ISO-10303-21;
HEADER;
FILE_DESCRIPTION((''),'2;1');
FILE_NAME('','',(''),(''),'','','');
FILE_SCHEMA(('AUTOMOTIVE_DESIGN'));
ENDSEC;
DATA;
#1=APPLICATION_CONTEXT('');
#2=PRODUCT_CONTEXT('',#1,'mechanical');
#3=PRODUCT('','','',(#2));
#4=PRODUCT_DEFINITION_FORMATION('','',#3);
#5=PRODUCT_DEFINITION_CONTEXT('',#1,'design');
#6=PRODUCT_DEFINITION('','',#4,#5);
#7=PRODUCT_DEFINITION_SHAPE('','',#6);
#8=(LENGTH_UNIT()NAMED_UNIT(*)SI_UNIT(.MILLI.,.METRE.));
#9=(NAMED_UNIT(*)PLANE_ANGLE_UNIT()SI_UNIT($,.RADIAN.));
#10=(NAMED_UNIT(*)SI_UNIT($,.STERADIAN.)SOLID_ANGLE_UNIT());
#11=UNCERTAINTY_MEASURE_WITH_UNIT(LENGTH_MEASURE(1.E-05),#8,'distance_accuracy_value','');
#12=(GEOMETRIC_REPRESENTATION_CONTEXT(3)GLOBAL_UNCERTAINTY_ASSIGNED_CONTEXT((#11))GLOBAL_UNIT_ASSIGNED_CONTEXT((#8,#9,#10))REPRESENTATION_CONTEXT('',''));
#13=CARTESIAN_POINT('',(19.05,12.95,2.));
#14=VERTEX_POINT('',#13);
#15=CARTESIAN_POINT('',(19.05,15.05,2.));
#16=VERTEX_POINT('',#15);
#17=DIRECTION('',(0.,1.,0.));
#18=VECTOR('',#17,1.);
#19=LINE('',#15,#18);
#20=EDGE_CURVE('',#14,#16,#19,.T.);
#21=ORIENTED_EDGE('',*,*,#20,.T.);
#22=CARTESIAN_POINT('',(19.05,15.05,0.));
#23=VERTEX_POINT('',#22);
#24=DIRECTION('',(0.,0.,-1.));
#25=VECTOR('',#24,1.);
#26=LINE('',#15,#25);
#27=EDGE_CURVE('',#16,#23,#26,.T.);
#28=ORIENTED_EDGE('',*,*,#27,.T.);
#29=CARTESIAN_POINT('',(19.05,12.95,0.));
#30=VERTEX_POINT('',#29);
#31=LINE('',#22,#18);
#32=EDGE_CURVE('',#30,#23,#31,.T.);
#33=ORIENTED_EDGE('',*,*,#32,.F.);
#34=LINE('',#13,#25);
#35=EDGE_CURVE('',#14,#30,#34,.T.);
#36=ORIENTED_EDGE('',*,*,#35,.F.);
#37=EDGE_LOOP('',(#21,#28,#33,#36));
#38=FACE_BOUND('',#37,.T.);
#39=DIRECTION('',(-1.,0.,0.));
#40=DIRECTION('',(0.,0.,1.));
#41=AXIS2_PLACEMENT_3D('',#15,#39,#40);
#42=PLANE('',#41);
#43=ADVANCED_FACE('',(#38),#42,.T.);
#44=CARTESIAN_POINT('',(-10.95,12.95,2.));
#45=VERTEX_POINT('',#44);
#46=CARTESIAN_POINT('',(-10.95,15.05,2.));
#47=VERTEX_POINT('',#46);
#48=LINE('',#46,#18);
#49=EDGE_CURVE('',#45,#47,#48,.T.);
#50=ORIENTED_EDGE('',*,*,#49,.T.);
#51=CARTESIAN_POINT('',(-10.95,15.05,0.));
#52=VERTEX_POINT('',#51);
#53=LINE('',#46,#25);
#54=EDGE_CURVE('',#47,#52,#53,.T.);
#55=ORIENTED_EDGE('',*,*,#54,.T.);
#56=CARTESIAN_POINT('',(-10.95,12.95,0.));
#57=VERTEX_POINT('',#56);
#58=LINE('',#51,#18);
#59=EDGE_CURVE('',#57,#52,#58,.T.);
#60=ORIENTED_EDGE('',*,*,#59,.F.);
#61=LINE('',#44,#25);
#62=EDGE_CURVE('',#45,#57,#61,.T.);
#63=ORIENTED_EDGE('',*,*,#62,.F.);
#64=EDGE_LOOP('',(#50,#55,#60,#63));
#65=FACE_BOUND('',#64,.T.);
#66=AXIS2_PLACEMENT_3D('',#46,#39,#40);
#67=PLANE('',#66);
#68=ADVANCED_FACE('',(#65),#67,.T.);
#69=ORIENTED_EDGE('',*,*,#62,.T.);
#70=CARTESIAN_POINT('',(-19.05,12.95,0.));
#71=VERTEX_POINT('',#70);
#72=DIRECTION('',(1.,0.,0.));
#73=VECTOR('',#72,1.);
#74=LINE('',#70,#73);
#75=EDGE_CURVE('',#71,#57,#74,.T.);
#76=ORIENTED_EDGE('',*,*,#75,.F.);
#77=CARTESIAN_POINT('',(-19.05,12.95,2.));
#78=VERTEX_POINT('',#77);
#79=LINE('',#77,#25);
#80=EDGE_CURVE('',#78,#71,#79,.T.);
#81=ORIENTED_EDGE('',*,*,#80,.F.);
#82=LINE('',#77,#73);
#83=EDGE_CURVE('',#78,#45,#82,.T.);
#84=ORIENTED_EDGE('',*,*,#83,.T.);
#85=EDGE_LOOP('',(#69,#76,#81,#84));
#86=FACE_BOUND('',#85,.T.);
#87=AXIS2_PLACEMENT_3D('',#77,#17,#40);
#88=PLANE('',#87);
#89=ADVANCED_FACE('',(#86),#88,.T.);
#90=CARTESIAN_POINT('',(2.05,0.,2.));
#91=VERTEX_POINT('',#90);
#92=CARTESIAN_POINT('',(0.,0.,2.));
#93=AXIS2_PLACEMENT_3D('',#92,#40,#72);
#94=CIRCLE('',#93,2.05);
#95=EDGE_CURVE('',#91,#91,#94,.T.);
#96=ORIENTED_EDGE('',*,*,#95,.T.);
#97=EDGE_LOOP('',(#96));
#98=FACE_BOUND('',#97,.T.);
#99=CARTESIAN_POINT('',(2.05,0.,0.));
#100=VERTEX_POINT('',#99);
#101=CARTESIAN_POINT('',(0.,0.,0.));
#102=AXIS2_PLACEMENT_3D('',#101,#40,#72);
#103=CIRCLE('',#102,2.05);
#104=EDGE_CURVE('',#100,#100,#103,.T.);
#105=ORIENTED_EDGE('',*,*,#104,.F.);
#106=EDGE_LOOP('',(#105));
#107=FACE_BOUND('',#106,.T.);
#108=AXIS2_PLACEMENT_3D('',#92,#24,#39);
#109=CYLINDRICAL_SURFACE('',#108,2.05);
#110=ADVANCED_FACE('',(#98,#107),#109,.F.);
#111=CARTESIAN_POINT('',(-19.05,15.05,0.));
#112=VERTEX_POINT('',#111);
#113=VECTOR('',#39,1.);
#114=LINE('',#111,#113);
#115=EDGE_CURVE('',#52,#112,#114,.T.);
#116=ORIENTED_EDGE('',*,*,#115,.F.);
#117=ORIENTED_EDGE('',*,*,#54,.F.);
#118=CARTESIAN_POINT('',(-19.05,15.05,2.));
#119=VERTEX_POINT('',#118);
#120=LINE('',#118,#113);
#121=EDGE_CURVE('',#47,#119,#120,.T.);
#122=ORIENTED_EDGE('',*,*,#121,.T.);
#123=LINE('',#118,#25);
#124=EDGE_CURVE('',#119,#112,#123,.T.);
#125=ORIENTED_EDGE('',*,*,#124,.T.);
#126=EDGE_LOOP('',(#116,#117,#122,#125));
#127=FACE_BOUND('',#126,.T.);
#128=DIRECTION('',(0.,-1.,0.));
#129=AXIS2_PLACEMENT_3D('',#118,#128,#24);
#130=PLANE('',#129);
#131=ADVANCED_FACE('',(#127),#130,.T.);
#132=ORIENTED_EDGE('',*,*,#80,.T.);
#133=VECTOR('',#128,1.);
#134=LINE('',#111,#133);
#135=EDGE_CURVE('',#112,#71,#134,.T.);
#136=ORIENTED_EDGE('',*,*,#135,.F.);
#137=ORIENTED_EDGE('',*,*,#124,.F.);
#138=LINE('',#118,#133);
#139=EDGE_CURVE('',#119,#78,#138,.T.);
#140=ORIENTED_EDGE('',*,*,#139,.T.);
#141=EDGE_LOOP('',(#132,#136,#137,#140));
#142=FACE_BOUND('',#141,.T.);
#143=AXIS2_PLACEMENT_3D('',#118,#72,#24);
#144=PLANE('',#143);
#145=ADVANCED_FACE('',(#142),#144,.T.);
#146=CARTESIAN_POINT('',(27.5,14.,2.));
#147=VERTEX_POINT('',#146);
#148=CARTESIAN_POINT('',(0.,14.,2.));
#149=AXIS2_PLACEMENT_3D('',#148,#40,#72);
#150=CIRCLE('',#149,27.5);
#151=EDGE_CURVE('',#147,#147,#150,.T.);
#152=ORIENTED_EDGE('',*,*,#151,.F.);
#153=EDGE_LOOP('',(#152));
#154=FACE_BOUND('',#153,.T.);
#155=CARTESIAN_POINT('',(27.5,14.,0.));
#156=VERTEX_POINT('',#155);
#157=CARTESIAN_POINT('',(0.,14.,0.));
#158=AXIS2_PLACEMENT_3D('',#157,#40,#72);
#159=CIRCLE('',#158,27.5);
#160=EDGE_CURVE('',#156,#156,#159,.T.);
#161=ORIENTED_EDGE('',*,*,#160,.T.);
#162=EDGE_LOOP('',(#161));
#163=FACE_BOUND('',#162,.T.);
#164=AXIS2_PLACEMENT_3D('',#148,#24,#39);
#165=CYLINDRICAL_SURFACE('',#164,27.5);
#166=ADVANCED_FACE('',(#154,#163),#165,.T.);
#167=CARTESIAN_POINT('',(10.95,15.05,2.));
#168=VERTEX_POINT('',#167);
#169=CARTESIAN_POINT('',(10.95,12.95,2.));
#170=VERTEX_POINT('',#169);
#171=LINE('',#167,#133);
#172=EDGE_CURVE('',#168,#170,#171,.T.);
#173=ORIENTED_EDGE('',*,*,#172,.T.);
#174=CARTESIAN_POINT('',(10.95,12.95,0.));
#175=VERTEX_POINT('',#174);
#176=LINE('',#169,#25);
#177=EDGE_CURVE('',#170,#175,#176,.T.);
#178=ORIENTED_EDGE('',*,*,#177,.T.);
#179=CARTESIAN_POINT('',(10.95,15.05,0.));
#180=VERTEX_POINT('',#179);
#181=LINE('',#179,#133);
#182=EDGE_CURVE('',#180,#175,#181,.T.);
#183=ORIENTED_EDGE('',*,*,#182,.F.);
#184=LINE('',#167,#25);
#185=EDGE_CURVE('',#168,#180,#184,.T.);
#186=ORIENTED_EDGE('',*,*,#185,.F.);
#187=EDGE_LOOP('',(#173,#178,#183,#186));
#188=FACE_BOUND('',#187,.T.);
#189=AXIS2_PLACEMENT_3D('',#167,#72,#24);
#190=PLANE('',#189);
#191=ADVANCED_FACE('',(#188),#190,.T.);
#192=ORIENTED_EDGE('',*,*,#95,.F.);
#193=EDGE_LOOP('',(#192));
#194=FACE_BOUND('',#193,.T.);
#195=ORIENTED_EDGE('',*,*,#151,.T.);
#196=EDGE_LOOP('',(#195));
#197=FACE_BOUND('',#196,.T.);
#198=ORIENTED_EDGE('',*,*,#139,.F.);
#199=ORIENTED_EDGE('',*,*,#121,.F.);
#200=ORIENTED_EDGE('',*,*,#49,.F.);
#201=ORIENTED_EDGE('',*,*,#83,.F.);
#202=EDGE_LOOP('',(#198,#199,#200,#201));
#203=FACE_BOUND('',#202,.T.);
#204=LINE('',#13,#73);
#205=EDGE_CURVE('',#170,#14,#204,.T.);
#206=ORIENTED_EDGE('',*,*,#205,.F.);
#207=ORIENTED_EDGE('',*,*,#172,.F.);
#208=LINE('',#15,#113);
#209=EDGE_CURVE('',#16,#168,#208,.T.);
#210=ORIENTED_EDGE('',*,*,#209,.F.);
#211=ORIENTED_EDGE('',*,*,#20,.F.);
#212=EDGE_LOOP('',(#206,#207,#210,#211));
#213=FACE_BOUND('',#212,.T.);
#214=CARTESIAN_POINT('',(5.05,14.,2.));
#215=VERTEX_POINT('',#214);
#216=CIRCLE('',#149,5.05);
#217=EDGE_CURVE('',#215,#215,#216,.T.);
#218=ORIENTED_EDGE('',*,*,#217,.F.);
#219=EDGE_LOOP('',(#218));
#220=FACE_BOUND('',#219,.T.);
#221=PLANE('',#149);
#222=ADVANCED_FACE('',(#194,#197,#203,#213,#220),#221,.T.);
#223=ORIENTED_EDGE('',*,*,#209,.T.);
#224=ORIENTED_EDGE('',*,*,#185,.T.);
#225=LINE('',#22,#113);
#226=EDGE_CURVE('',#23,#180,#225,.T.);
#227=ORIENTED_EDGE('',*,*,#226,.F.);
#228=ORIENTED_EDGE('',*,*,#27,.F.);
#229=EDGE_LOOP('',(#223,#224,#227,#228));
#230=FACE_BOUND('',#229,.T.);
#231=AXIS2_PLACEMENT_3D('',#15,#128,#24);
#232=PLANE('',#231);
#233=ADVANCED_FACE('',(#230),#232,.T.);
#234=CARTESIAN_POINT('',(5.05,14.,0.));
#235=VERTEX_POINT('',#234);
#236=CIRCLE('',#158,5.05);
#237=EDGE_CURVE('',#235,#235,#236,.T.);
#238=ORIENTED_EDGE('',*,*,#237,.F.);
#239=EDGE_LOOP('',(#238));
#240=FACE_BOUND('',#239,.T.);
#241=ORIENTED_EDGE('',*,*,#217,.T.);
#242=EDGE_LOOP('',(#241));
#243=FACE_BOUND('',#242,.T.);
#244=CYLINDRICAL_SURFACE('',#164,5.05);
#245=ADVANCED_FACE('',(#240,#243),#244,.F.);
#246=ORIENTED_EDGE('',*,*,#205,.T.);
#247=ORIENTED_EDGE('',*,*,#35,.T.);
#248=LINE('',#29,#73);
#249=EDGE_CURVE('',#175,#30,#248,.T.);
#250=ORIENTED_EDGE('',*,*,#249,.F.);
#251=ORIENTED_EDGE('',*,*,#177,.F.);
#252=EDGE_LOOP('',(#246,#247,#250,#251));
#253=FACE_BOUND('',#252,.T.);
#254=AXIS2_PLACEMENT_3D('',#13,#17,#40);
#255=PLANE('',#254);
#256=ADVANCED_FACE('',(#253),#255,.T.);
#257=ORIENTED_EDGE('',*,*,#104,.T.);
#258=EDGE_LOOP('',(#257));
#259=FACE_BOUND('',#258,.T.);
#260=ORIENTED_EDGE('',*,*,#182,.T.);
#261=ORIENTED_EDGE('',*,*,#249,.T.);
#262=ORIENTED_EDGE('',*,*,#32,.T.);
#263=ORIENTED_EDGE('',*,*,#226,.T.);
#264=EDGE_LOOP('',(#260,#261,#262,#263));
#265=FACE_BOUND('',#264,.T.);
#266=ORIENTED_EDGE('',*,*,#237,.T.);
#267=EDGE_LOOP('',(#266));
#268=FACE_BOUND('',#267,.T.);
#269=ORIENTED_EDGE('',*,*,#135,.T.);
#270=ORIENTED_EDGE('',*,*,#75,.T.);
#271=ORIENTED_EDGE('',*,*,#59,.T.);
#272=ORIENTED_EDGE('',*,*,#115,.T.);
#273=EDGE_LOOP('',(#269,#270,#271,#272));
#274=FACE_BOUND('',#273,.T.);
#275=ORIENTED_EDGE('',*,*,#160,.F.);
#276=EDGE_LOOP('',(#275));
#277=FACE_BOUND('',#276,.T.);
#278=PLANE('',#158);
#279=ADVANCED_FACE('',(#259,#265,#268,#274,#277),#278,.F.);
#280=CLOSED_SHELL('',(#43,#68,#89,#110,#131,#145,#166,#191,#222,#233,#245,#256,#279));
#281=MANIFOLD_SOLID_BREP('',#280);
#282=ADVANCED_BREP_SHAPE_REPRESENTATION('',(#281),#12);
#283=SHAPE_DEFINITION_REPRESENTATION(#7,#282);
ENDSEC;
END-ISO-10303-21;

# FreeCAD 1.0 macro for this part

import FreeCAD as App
import Part
import Sketcher

V = App.Vector
Q = App.Units.Quantity

doc = App.newDocument("Part")
body = doc.addObject("PartDesign::Body", "Body")

sketch1 = doc.addObject("Sketcher::SketchObject", "Sketch")
body.addObject(sketch1)
sketch1.AttachmentSupport = (doc.XY_Plane, [""])
sketch1.MapMode = "FlatFace"
sketch1.addGeometry([
    Part.Circle(V(0, 14, 0), V(0, 0, 1), 27.5),
    Part.Circle(V(0, 0, 0), V(0, 0, 1), 2),
    Part.LineSegment(V(-10.9, 12.9, 0), V(-19.1, 12.9, 0)),
    Part.LineSegment(V(-19.1, 12.9, 0), V(-19.1, 15.1, 0)),
    Part.LineSegment(V(-19.1, 15.1, 0), V(-10.9, 15.1, 0)),
    Part.LineSegment(V(-10.9, 15.1, 0), V(-10.9, 12.9, 0)),
    Part.Circle(V(0, 14, 0), V(0, 0, 1), 5),
    Part.LineSegment(V(19.1, 12.9, 0), V(10.9, 12.9, 0)),
    Part.LineSegment(V(10.9, 12.9, 0), V(10.9, 15.1, 0)),
    Part.LineSegment(V(10.9, 15.1, 0), V(19.1, 15.1, 0)),
    Part.LineSegment(V(19.1, 15.1, 0), V(19.1, 12.9, 0)),
], False)
sketch1.addConstraint([
    Sketcher.Constraint("Coincident", 2, 2, 3, 1),
    Sketcher.Constraint("Coincident", 3, 2, 4, 1),
    Sketcher.Constraint("Coincident", 4, 2, 5, 1),
    Sketcher.Constraint("Coincident", 5, 2, 2, 1),
    Sketcher.Constraint("Coincident", 7, 2, 8, 1),
    Sketcher.Constraint("Coincident", 8, 2, 9, 1),
    Sketcher.Constraint("Coincident", 9, 2, 10, 1),
    Sketcher.Constraint("Coincident", 10, 2, 7, 1),
    Sketcher.Constraint("Horizontal", 2),
    Sketcher.Constraint("Vertical", 3),
    Sketcher.Constraint("Horizontal", 4),
    Sketcher.Constraint("Vertical", 5),
    Sketcher.Constraint("Horizontal", 7),
    Sketcher.Constraint("Vertical", 8),
    Sketcher.Constraint("Horizontal", 9),
    Sketcher.Constraint("Vertical", 10),
    Sketcher.Constraint("Coincident", 1, 3, -1, 1),
    Sketcher.Constraint("Coincident", 6, 3, 0, 3),
    Sketcher.Constraint("Symmetric", 5, 2, 7, 2, -2),
    Sketcher.Constraint("Symmetric", 3, 2, 9, 2, -2),
    Sketcher.Constraint("PointOnObject", 0, 3, -2),
    Sketcher.Constraint("Diameter", 0, Q("55 mm")),
    Sketcher.Constraint("Diameter", 1, Q("4.1 mm")),
    Sketcher.Constraint("Diameter", 6, Q("10.1 mm")),
    Sketcher.Constraint("DistanceX", 2, 2, 2, 1, Q("8.1 mm")),
    Sketcher.Constraint("DistanceY", 3, 1, 3, 2, Q("2.1 mm")),
    Sketcher.Constraint("DistanceY", -1, 1, 0, 3, Q("14 mm")),
    Sketcher.Constraint("DistanceX", 5, 2, 7, 2, Q("21.9 mm")),
    Sketcher.Constraint("DistanceY", -1, 1, 2, 2, Q("12.95 mm")),
])
pad1 = doc.addObject("PartDesign::Pad", "Pad")
body.addObject(pad1)
pad1.Profile = sketch1
pad1.Length = 2

doc.recompute()
